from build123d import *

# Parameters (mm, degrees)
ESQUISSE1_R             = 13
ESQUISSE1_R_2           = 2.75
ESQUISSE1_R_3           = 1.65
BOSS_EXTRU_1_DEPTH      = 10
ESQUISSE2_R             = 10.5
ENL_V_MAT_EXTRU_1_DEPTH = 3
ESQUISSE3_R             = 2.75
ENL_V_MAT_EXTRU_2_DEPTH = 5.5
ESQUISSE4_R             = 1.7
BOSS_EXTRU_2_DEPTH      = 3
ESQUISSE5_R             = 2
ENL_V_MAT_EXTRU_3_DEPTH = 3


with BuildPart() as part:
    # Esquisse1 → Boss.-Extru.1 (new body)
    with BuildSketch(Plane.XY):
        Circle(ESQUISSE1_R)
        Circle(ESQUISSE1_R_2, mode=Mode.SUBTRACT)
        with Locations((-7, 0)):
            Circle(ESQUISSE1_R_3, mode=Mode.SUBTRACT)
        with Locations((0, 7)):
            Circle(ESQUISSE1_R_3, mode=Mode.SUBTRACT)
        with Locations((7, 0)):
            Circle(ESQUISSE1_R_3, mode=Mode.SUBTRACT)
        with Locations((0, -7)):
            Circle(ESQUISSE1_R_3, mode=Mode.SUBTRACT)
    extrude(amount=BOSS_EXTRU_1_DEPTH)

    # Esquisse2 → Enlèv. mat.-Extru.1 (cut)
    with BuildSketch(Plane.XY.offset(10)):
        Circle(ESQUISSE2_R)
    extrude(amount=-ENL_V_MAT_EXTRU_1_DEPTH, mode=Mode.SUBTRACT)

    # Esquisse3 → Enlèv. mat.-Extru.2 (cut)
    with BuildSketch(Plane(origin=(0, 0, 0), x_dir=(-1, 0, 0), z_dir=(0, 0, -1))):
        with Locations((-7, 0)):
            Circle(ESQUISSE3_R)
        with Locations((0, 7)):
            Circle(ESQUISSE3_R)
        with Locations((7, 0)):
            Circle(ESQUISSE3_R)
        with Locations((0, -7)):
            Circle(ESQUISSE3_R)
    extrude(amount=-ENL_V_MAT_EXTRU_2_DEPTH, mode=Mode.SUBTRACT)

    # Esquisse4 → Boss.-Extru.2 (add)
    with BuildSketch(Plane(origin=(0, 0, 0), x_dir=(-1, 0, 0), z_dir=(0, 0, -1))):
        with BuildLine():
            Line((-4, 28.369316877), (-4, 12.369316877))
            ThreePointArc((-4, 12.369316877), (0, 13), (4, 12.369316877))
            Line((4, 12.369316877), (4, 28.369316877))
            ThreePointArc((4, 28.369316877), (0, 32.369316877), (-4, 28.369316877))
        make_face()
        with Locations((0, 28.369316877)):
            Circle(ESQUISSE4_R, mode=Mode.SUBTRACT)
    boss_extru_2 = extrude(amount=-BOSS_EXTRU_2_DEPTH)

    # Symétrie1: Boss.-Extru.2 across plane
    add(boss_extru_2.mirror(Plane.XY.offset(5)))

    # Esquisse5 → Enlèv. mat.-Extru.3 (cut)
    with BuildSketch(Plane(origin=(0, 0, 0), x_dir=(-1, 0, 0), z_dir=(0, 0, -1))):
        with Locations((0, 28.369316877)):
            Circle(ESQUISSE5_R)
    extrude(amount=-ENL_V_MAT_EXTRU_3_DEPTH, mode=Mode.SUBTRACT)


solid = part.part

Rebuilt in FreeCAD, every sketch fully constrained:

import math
import FreeCAD as App
import Part
import Sketcher
Q = App.Units.Quantity

doc = App.newDocument("Part")
body = doc.addObject("PartDesign::Body", "Body")

sketch1 = doc.addObject("Sketcher::SketchObject", "Sketch")
body.addObject(sketch1)
sketch1.AttachmentSupport = (doc.XY_Plane, [""])
sketch1.MapMode = "FlatFace"
sketch1.addGeometry([
    Part.Circle(App.Vector(0, 0, 0), App.Vector(0, 0, 1), 13),
    Part.Circle(App.Vector(0, -7, 0), App.Vector(0, 0, 1), 1.65),
    Part.Circle(App.Vector(-7, 0, 0), App.Vector(0, 0, 1), 1.65),
    Part.Circle(App.Vector(0, 0, 0), App.Vector(0, 0, 1), 2.75),
    Part.Circle(App.Vector(7, 0, 0), App.Vector(0, 0, 1), 1.65),
    Part.Circle(App.Vector(0, 7, 0), App.Vector(0, 0, 1), 1.65),
], False)
sketch1.addConstraint([
    Sketcher.Constraint("Coincident", 0, 3, -1, 1),
    Sketcher.Constraint("Coincident", 3, 3, -1, 1),
    Sketcher.Constraint("Equal", 1, 2),
    Sketcher.Constraint("Equal", 2, 4),
    Sketcher.Constraint("Equal", 4, 5),
    Sketcher.Constraint("Symmetric", 2, 3, 4, 3, -1, 1),
    Sketcher.Constraint("Symmetric", 1, 3, 5, 3, -1, 1),
    Sketcher.Constraint("PointOnObject", 1, 3, -2),
    Sketcher.Constraint("PointOnObject", 2, 3, -1),
    Sketcher.Constraint("Diameter", 0, Q("26 mm")),
    Sketcher.Constraint("Diameter", 1, Q("3.3 mm")),
    Sketcher.Constraint("Diameter", 3, Q("5.5 mm")),
    Sketcher.Constraint("DistanceY", 1, 3, -1, 1, Q("7 mm")),
    Sketcher.Constraint("DistanceX", 2, 3, -1, 1, Q("7 mm")),
])
pad1 = doc.addObject("PartDesign::Pad", "Pad")
body.addObject(pad1)
pad1.Profile = sketch1
pad1.Length = 10

sketch2 = doc.addObject("Sketcher::SketchObject", "Sketch001")
body.addObject(sketch2)
sketch2.AttachmentSupport = (doc.XY_Plane, [""])
sketch2.MapMode = "FlatFace"
sketch2.AttachmentOffset = App.Placement(App.Vector(0, 0, 10), App.Rotation())
sketch2.addGeometry(Part.Circle(App.Vector(0, 0, 0), App.Vector(0, 0, 1), 10.5), False)
sketch2.addConstraint([
    Sketcher.Constraint("Coincident", 0, 3, -1, 1),
    Sketcher.Constraint("Diameter", 0, Q("21 mm")),
])
pocket1 = doc.addObject("PartDesign::Pocket", "Pocket")
body.addObject(pocket1)
pocket1.Profile = sketch2
pocket1.Length = 3

sketch3 = doc.addObject("Sketcher::SketchObject", "Sketch002")
body.addObject(sketch3)
sketch3.AttachmentSupport = (doc.XY_Plane, [""])
sketch3.MapMode = "FlatFace"
sketch3.addGeometry([
    Part.Circle(App.Vector(7, 0, 0), App.Vector(0, 0, 1), 2.75),
    Part.Circle(App.Vector(0, 7, 0), App.Vector(0, 0, 1), 2.75),
    Part.Circle(App.Vector(-7, 0, 0), App.Vector(0, 0, 1), 2.75),
    Part.Circle(App.Vector(0, -7, 0), App.Vector(0, 0, 1), 2.75),
], False)
sketch3.addConstraint([
    Sketcher.Constraint("Equal", 0, 1),
    Sketcher.Constraint("Equal", 1, 2),
    Sketcher.Constraint("Equal", 2, 3),
    Sketcher.Constraint("Symmetric", 0, 3, 2, 3, -1, 1),
    Sketcher.Constraint("Symmetric", 1, 3, 3, 3, -1, 1),
    Sketcher.Constraint("PointOnObject", 0, 3, -1),
    Sketcher.Constraint("PointOnObject", 1, 3, -2),
    Sketcher.Constraint("Diameter", 0, Q("5.5 mm")),
    Sketcher.Constraint("DistanceX", -1, 1, 0, 3, Q("7 mm")),
    Sketcher.Constraint("DistanceY", -1, 1, 1, 3, Q("7 mm")),
])
pocket2 = doc.addObject("PartDesign::Pocket", "Pocket001")
body.addObject(pocket2)
pocket2.Profile = sketch3
pocket2.Length = 5.5
pocket2.Reversed = True

sketch4 = doc.addObject("Sketcher::SketchObject", "Sketch003")
body.addObject(sketch4)
sketch4.AttachmentSupport = (doc.XY_Plane, [""])
sketch4.MapMode = "FlatFace"
sketch4.addGeometry([
    Part.LineSegment(App.Vector(4, 28.369317, 0), App.Vector(4, 12.369317, 0)),
    Part.ArcOfCircle(Part.Circle(App.Vector(0, 0, 0), App.Vector(0, 0, 1), 13), math.radians(72.079787), math.radians(107.920213)),
    Part.LineSegment(App.Vector(-4, 12.369317, 0), App.Vector(-4, 28.369317, 0)),
    Part.ArcOfCircle(Part.Circle(App.Vector(0, 28.369317, 0), App.Vector(0, 0, 1), 4), math.radians(0), math.radians(180)),
    Part.Circle(App.Vector(0, 28.369317, 0), App.Vector(0, 0, 1), 1.7),
], False)
sketch4.addConstraint([
    Sketcher.Constraint("Coincident", 0, 2, 1, 1),
    Sketcher.Constraint("Coincident", 1, 2, 2, 1),
    Sketcher.Constraint("Tangent", 2, 2, 3, 2),
    Sketcher.Constraint("Tangent", 3, 1, 0, 1),
    Sketcher.Constraint("Vertical", 0),
    Sketcher.Constraint("Vertical", 2),
    Sketcher.Constraint("Coincident", 1, 3, -1, 1),
    Sketcher.Constraint("Coincident", 4, 3, 3, 3),
    Sketcher.Constraint("PointOnObject", 3, 3, -2),
    Sketcher.Constraint("Radius", 1, Q("13 mm")),
    Sketcher.Constraint("Radius", 3, Q("4 mm")),
    Sketcher.Constraint("Diameter", 4, Q("3.4 mm")),
    Sketcher.Constraint("DistanceY", 0, 2, 0, 1, Q("16 mm")),
])
pad2 = doc.addObject("PartDesign::Pad", "Pad001")
body.addObject(pad2)
pad2.Profile = sketch4
pad2.Length = 3
doc.recompute()

datumplane = doc.addObject("PartDesign::Plane", "DatumPlane")
body.addObject(datumplane)
datumplane.AttachmentSupport = (doc.XY_Plane, [""])
datumplane.MapMode = "FlatFace"
datumplane.AttachmentOffset = App.Placement(App.Vector(0, 0, 5), App.Rotation())
mirrored = doc.addObject("PartDesign::Mirrored", "Mirrored")
body.addObject(mirrored)
mirrored.Originals = [pad2]
mirrored.MirrorPlane = (datumplane, [""])
body.Tip = mirrored

sketch5 = doc.addObject("Sketcher::SketchObject", "Sketch004")
body.addObject(sketch5)
sketch5.AttachmentSupport = (doc.XY_Plane, [""])
sketch5.MapMode = "FlatFace"
sketch5.addGeometry(Part.Circle(App.Vector(0, 28.369317, 0), App.Vector(0, 0, 1), 2), False)
sketch5.addConstraint([
    Sketcher.Constraint("PointOnObject", 0, 3, -2),
    Sketcher.Constraint("Diameter", 0, Q("4 mm")),
    Sketcher.Constraint("DistanceY", -1, 1, 0, 3, Q("28.369317 mm")),
])
pocket3 = doc.addObject("PartDesign::Pocket", "Pocket002")
body.addObject(pocket3)
pocket3.Profile = sketch5
pocket3.Length = 3
pocket3.Reversed = True

doc.recompute()
